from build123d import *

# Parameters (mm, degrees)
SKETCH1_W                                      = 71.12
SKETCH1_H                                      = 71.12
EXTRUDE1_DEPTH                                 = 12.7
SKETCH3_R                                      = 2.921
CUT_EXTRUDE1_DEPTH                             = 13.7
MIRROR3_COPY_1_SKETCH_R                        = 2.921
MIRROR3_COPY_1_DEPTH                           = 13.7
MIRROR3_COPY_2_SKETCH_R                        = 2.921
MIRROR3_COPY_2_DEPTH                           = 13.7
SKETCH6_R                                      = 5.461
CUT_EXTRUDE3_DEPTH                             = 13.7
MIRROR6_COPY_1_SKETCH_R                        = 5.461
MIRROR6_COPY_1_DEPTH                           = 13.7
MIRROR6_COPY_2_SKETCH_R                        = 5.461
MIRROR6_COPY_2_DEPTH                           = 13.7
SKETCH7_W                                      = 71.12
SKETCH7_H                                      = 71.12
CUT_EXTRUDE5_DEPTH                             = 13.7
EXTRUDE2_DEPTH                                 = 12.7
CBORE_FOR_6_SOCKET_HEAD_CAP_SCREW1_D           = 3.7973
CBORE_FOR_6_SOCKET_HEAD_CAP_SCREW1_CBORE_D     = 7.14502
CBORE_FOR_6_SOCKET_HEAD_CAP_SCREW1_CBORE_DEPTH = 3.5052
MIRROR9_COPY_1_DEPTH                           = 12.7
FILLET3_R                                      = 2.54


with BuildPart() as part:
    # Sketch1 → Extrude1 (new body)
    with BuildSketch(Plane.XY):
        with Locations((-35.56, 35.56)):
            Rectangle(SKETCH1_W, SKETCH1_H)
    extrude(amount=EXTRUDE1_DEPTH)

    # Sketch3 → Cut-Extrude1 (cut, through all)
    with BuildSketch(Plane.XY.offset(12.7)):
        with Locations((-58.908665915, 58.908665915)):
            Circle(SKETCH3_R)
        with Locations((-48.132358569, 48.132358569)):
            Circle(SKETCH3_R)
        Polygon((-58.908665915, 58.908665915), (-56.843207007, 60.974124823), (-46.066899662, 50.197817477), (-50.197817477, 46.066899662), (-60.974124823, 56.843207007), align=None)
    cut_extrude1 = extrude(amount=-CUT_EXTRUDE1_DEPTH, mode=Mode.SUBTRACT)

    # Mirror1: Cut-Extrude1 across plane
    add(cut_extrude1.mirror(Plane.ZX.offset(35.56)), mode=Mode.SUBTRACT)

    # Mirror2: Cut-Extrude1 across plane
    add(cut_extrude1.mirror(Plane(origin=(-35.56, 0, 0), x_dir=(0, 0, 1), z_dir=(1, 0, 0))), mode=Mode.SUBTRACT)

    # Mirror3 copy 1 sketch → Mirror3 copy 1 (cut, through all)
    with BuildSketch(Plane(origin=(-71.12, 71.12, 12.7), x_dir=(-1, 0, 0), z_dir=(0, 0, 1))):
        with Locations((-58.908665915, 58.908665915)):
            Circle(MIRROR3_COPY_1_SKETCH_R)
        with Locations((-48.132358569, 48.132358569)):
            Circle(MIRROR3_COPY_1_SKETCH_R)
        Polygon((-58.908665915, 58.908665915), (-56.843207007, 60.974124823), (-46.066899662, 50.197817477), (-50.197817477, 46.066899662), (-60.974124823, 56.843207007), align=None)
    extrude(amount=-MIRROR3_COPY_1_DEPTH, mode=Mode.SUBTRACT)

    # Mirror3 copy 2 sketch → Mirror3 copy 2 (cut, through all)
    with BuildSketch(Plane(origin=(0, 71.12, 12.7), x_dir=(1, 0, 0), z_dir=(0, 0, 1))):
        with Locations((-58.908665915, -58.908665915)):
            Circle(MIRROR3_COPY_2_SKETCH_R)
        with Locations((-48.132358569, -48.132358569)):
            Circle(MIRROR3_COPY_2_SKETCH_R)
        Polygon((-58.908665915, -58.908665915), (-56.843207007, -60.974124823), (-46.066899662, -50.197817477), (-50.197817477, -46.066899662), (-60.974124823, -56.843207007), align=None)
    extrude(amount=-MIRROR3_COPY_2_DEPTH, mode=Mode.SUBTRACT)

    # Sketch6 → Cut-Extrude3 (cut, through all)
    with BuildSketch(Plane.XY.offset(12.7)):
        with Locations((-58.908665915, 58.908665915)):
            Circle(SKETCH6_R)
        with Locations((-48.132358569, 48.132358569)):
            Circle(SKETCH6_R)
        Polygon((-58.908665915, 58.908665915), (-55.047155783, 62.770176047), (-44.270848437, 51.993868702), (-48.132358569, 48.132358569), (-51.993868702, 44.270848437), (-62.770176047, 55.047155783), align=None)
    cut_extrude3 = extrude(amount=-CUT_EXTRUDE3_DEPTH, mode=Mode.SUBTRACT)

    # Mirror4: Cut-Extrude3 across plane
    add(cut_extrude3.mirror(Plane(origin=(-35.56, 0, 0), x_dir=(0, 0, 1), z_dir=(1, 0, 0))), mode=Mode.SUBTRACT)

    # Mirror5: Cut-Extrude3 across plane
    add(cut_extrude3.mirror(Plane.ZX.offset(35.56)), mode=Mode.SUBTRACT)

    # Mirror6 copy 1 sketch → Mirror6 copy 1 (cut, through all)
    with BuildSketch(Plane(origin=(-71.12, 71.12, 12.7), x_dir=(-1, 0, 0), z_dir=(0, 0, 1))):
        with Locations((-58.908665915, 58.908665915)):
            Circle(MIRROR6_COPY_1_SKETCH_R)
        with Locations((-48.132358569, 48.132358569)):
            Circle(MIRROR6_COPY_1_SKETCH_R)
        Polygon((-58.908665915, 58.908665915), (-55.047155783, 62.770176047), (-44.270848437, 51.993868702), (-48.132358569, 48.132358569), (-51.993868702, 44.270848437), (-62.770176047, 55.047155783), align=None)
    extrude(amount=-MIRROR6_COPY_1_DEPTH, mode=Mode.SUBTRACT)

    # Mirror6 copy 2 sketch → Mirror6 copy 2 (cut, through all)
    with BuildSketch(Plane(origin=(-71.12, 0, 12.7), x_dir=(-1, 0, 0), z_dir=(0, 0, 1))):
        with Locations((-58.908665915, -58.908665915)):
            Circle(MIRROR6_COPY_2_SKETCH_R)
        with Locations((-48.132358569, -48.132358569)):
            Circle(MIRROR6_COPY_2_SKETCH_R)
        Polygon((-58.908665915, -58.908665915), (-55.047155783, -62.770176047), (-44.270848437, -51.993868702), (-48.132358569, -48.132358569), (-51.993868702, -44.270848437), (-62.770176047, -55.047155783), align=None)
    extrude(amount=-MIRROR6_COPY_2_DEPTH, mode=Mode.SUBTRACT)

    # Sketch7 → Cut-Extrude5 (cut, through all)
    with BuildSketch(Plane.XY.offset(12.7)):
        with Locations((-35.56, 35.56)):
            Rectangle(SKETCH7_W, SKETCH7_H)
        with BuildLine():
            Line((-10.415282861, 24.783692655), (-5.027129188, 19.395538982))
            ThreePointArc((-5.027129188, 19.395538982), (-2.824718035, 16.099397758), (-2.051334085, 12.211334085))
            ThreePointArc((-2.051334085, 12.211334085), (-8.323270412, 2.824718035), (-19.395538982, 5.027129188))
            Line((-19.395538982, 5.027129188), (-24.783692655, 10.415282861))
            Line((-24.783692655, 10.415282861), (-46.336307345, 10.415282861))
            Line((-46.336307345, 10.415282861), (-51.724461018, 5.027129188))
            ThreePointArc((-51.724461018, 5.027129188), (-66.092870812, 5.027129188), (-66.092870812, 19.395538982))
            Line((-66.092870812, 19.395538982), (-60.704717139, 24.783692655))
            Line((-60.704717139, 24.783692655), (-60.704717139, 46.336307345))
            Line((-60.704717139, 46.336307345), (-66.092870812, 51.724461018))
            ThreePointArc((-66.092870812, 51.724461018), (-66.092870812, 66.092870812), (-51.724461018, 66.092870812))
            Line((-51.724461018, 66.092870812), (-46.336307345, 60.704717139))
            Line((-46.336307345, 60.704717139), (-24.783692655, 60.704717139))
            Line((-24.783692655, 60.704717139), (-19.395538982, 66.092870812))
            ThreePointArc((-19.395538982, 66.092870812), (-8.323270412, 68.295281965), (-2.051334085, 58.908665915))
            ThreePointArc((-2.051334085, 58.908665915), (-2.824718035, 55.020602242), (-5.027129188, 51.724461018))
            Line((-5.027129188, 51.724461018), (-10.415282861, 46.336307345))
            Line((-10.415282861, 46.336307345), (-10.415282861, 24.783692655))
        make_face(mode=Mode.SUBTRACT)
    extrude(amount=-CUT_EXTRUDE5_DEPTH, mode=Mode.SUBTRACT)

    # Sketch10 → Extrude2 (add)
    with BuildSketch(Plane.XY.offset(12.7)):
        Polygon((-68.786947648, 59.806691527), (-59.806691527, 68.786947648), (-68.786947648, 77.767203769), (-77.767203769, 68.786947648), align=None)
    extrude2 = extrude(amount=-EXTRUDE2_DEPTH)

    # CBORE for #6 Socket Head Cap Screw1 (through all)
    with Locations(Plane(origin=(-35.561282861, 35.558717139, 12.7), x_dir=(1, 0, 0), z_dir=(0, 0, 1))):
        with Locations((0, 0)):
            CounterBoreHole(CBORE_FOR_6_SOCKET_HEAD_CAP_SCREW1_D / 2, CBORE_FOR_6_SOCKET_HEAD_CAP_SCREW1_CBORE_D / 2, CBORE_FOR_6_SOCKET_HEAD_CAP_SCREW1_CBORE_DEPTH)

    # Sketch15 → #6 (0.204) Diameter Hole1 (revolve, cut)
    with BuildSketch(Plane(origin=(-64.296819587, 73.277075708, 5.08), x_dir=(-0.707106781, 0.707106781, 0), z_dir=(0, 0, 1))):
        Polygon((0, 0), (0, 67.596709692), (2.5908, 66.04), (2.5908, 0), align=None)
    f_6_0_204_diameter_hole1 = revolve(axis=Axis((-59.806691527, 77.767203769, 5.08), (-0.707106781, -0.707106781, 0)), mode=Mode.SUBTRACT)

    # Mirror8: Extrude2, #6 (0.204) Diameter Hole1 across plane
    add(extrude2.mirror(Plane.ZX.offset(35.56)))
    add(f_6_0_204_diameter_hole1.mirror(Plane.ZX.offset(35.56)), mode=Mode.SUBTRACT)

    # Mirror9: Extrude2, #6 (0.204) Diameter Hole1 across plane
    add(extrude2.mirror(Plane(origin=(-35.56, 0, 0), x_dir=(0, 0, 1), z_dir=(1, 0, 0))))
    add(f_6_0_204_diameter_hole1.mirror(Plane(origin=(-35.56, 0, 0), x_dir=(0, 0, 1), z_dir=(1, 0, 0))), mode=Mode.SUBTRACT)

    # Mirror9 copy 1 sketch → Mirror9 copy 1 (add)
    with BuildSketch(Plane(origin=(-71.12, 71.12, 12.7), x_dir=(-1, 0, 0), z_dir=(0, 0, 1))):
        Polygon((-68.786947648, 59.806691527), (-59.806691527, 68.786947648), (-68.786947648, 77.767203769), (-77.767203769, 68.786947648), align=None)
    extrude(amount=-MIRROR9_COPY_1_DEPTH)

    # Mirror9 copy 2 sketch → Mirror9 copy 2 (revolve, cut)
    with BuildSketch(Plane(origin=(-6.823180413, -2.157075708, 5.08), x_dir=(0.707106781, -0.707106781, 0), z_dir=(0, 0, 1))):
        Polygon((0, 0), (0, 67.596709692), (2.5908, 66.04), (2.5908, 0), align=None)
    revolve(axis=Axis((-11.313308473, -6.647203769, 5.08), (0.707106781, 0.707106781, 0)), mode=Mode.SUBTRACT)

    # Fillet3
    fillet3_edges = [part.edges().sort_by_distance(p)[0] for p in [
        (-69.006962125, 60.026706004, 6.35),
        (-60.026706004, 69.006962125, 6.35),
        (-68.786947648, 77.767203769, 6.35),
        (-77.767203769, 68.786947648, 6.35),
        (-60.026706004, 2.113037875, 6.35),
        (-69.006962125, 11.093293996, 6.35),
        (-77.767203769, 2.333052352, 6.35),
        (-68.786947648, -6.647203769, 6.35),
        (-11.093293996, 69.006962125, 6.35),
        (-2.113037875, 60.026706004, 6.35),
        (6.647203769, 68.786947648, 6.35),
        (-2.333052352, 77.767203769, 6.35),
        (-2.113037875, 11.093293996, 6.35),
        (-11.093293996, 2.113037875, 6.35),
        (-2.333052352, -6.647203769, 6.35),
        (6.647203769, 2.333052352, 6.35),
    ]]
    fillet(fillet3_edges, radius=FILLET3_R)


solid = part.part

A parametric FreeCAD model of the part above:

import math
import FreeCAD as App
import Part
import Sketcher
Q = App.Units.Quantity


def edges_at(feature, points):
    """Names of the edges that pass closest to the given points."""
    edges = feature.Shape.Edges
    near = lambda p: min(range(len(edges)), key=lambda i: edges[i].distToShape(Part.Vertex(*p))[0])
    return sorted({f"Edge{near(p) + 1}" for p in points})


def add_polygon(sketch, points):
    """Adds a closed chain of lines whose ends are joined by coincident constraints."""
    first, n = sketch.GeometryCount, len(points)
    for a, b in zip(points, points[1:] + points[:1]):
        sketch.addGeometry(Part.LineSegment(App.Vector(*a, 0), App.Vector(*b, 0)), False)
    for i in range(n):
        sketch.addConstraint(Sketcher.Constraint("Coincident", first + i, 2, first + (i + 1) % n, 1))

doc = App.newDocument("Part")
body = doc.addObject("PartDesign::Body", "Body")

# Sketch on XY plane
sketch1 = body.newObject("Sketcher::SketchObject", "Sketch")
sketch1.AttachmentSupport = (doc.getObject("XY_Plane"), [""])
sketch1.MapMode = "FlatFace"
add_polygon(sketch1, [(-71.12, 71.12), (-71.12, 0), (0, 0), (0, 71.12)])  # lines 0-3
sketch1.addConstraint(Sketcher.Constraint("Vertical", 0))
sketch1.addConstraint(Sketcher.Constraint("Horizontal", 1))
sketch1.addConstraint(Sketcher.Constraint("Vertical", 2))
sketch1.addConstraint(Sketcher.Constraint("Horizontal", 3))
sketch1.addConstraint(Sketcher.Constraint("Coincident", 1, 2, -1, 1))
sketch1.addConstraint(Sketcher.Constraint("Equal", 3, 0))
sketch1.addConstraint(Sketcher.Constraint("DistanceX", 1, 1, 1, 2, Q("2.8 in")))
pad1 = body.newObject("PartDesign::Pad", "Pad")
pad1.Profile = sketch1
pad1.Length = Q("0.5 in")

# Sketch on XY plane
sketch2 = body.newObject("Sketcher::SketchObject", "Sketch001")
sketch2.AttachmentSupport = (doc.getObject("XY_Plane"), [""])
sketch2.MapMode = "FlatFace"
sketch2.AttachmentOffset = App.Placement(App.Vector(0, 0, 0.5 * 25.4), App.Rotation())
sketch2.addGeometry(Part.LineSegment(App.Vector(-46.0669, 50.197817, 0), App.Vector(-56.843207, 60.974125, 0)), False)
sketch2.addGeometry(Part.ArcOfCircle(Part.Circle(App.Vector(-58.908666, 58.908666, 0), App.Vector(0, 0, 1), 2.921), math.radians(45), math.radians(225)), False)
sketch2.addGeometry(Part.LineSegment(App.Vector(-60.974125, 56.843207, 0), App.Vector(-50.197817, 46.0669, 0)), False)
sketch2.addGeometry(Part.ArcOfCircle(Part.Circle(App.Vector(-48.132359, 48.132359, 0), App.Vector(0, 0, 1), 2.921), math.radians(-135), math.radians(45)), False)
sketch2.addConstraint(Sketcher.Constraint("Tangent", 0, 2, 1, 1))
sketch2.addConstraint(Sketcher.Constraint("Tangent", 1, 2, 2, 1))
sketch2.addConstraint(Sketcher.Constraint("Tangent", 2, 2, 3, 1))
sketch2.addConstraint(Sketcher.Constraint("Tangent", 3, 2, 0, 1))
sketch2.addConstraint(Sketcher.Constraint("Equal", 1, 3))
sketch2.addConstraint(Sketcher.Constraint("Angle", 0, Q("135 deg")))
sketch2.addConstraint(Sketcher.Constraint("Radius", 1, Q("0.115 in")))
sketch2.addConstraint(Sketcher.Constraint("Distance", 0, Q("0.6 in")))
sketch2.addConstraint(Sketcher.Constraint("DistanceY", -1, 1, 2, 2, 46.0669))
sketch2.addConstraint(Sketcher.Constraint("DistanceX", 3, 2, -1, 1, 46.0669))
pocket1 = body.newObject("PartDesign::Pocket", "Pocket")
pocket1.Profile = sketch2
pocket1.Type = "ThroughAll"
doc.recompute()

datumplane = body.newObject("PartDesign::Plane", "DatumPlane")
datumplane.AttachmentSupport = (doc.getObject("XZ_Plane"), [""])
datumplane.MapMode = "FlatFace"
datumplane.AttachmentOffset = App.Placement(App.Vector(0, 0, -1.4 * 25.4), App.Rotation())
mirrored = body.newObject("PartDesign::Mirrored", "Mirrored")
mirrored.Originals = [pocket1]
mirrored.MirrorPlane = (datumplane, [""])
body.Tip = mirrored
doc.recompute()

datumplane2 = body.newObject("PartDesign::Plane", "DatumPlane001")
datumplane2.AttachmentSupport = (doc.getObject("YZ_Plane"), [""])
datumplane2.MapMode = "FlatFace"
datumplane2.AttachmentOffset = App.Placement(App.Vector(0, 0, -1.4 * 25.4), App.Rotation())
mirrored2 = body.newObject("PartDesign::Mirrored", "Mirrored001")
mirrored2.Originals = [pocket1]
mirrored2.MirrorPlane = (datumplane2, [""])
body.Tip = mirrored2

# Sketch on XY plane
sketch3 = body.newObject("Sketcher::SketchObject", "Sketch002")
sketch3.AttachmentSupport = (doc.getObject("XY_Plane"), [""])
sketch3.MapMode = "FlatFace"
sketch3.AttachmentOffset = App.Placement(App.Vector(0, 0, 0.5 * 25.4), App.Rotation())
sketch3.addGeometry(Part.LineSegment(App.Vector(-25.0531, 20.922183, 0), App.Vector(-14.276793, 10.145875, 0)), False)
sketch3.addGeometry(Part.ArcOfCircle(Part.Circle(App.Vector(-12.211334, 12.211334, 0), App.Vector(0, 0, 1), 2.921), math.radians(-135), math.radians(45)), False)
sketch3.addGeometry(Part.LineSegment(App.Vector(-10.145875, 14.276793, 0), App.Vector(-20.922183, 25.0531, 0)), False)
sketch3.addGeometry(Part.ArcOfCircle(Part.Circle(App.Vector(-22.987641, 22.987641, 0), App.Vector(0, 0, 1), 2.921), math.radians(45), math.radians(225)), False)
sketch3.addConstraint(Sketcher.Constraint("Tangent", 0, 2, 1, 1))
sketch3.addConstraint(Sketcher.Constraint("Tangent", 1, 2, 2, 1))
sketch3.addConstraint(Sketcher.Constraint("Tangent", 2, 2, 3, 1))
sketch3.addConstraint(Sketcher.Constraint("Tangent", 3, 2, 0, 1))
sketch3.addConstraint(Sketcher.Constraint("Equal", 1, 3))
sketch3.addConstraint(Sketcher.Constraint("Angle", 0, Q("-45 deg")))
sketch3.addConstraint(Sketcher.Constraint("Radius", 1, Q("0.115 in")))
sketch3.addConstraint(Sketcher.Constraint("Distance", 0, Q("0.6 in")))
sketch3.addConstraint(Sketcher.Constraint("DistanceY", -1, 1, 2, 2, 25.0531))
sketch3.addConstraint(Sketcher.Constraint("DistanceX", 3, 2, -1, 1, 25.0531))
pocket2 = body.newObject("PartDesign::Pocket", "Pocket001")
pocket2.Profile = sketch3
pocket2.Type = "ThroughAll"

# Sketch on XY plane
sketch4 = body.newObject("Sketcher::SketchObject", "Sketch003")
sketch4.AttachmentSupport = (doc.getObject("XY_Plane"), [""])
sketch4.MapMode = "FlatFace"
sketch4.AttachmentOffset = App.Placement(App.Vector(0, 0, 0.5 * 25.4), App.Rotation())
sketch4.addGeometry(Part.LineSegment(App.Vector(-56.843207, 10.145875, 0), App.Vector(-46.0669, 20.922183, 0)), False)
sketch4.addGeometry(Part.ArcOfCircle(Part.Circle(App.Vector(-48.132359, 22.987641, 0), App.Vector(0, 0, 1), 2.921), math.radians(-45), math.radians(135)), False)
sketch4.addGeometry(Part.LineSegment(App.Vector(-50.197817, 25.0531, 0), App.Vector(-60.974125, 14.276793, 0)), False)
sketch4.addGeometry(Part.ArcOfCircle(Part.Circle(App.Vector(-58.908666, 12.211334, 0), App.Vector(0, 0, 1), 2.921), math.radians(135), math.radians(315)), False)
sketch4.addConstraint(Sketcher.Constraint("Tangent", 0, 2, 1, 1))
sketch4.addConstraint(Sketcher.Constraint("Tangent", 1, 2, 2, 1))
sketch4.addConstraint(Sketcher.Constraint("Tangent", 2, 2, 3, 1))
sketch4.addConstraint(Sketcher.Constraint("Tangent", 3, 2, 0, 1))
sketch4.addConstraint(Sketcher.Constraint("Equal", 1, 3))
sketch4.addConstraint(Sketcher.Constraint("Angle", 0, Q("45 deg")))
sketch4.addConstraint(Sketcher.Constraint("Radius", 1, Q("0.115 in")))
sketch4.addConstraint(Sketcher.Constraint("Distance", 0, Q("0.6 in")))
sketch4.addConstraint(Sketcher.Constraint("DistanceX", 0, 2, -1, 1, 46.0669))
sketch4.addConstraint(Sketcher.Constraint("DistanceY", -1, 1, 1, 2, 25.0531))
pocket3 = body.newObject("PartDesign::Pocket", "Pocket002")
pocket3.Profile = sketch4
pocket3.Type = "ThroughAll"

# Sketch on XY plane
sketch5 = body.newObject("Sketcher::SketchObject", "Sketch004")
sketch5.AttachmentSupport = (doc.getObject("XY_Plane"), [""])
sketch5.MapMode = "FlatFace"
sketch5.AttachmentOffset = App.Placement(App.Vector(0, 0, 0.5 * 25.4), App.Rotation())
sketch5.addGeometry(Part.LineSegment(App.Vector(-44.270848, 51.993869, 0), App.Vector(-55.047156, 62.770176, 0)), False)
sketch5.addGeometry(Part.ArcOfCircle(Part.Circle(App.Vector(-58.908666, 58.908666, 0), App.Vector(0, 0, 1), 5.461), math.radians(45), math.radians(225)), False)
sketch5.addGeometry(Part.LineSegment(App.Vector(-62.770176, 55.047156, 0), App.Vector(-51.993869, 44.270848, 0)), False)
sketch5.addGeometry(Part.ArcOfCircle(Part.Circle(App.Vector(-48.132359, 48.132359, 0), App.Vector(0, 0, 1), 5.461), math.radians(-135), math.radians(45)), False)
sketch5.addConstraint(Sketcher.Constraint("Tangent", 0, 2, 1, 1))
sketch5.addConstraint(Sketcher.Constraint("Tangent", 1, 2, 2, 1))
sketch5.addConstraint(Sketcher.Constraint("Tangent", 2, 2, 3, 1))
sketch5.addConstraint(Sketcher.Constraint("Tangent", 3, 2, 0, 1))
sketch5.addConstraint(Sketcher.Constraint("Equal", 1, 3))
sketch5.addConstraint(Sketcher.Constraint("Angle", 0, Q("135 deg")))
sketch5.addConstraint(Sketcher.Constraint("Radius", 1, Q("0.215 in")))
sketch5.addConstraint(Sketcher.Constraint("Distance", 0, Q("0.6 in")))
sketch5.addConstraint(Sketcher.Constraint("DistanceX", 3, 3, -1, 1, 48.132359))
sketch5.addConstraint(Sketcher.Constraint("DistanceY", -1, 1, 3, 3, 48.132359))
pocket4 = body.newObject("PartDesign::Pocket", "Pocket003")
pocket4.Profile = sketch5
pocket4.Type = "ThroughAll"
doc.recompute()

datumplane3 = body.newObject("PartDesign::Plane", "DatumPlane002")
datumplane3.AttachmentSupport = (doc.getObject("YZ_Plane"), [""])
datumplane3.MapMode = "FlatFace"
datumplane3.AttachmentOffset = App.Placement(App.Vector(0, 0, -1.4 * 25.4), App.Rotation())
mirrored3 = body.newObject("PartDesign::Mirrored", "Mirrored002")
mirrored3.Originals = [pocket4]
mirrored3.MirrorPlane = (datumplane3, [""])
body.Tip = mirrored3
doc.recompute()

datumplane4 = body.newObject("PartDesign::Plane", "DatumPlane003")
datumplane4.AttachmentSupport = (doc.getObject("XZ_Plane"), [""])
datumplane4.MapMode = "FlatFace"
datumplane4.AttachmentOffset = App.Placement(App.Vector(0, 0, -1.4 * 25.4), App.Rotation())
mirrored4 = body.newObject("PartDesign::Mirrored", "Mirrored003")
mirrored4.Originals = [pocket4]
mirrored4.MirrorPlane = (datumplane4, [""])
body.Tip = mirrored4

# Sketch on XY plane
sketch6 = body.newObject("Sketcher::SketchObject", "Sketch005")
sketch6.AttachmentSupport = (doc.getObject("XY_Plane"), [""])
sketch6.MapMode = "FlatFace"
sketch6.AttachmentOffset = App.Placement(App.Vector(0, 0, 0.5 * 25.4), App.Rotation())
sketch6.addGeometry(Part.LineSegment(App.Vector(-26.849152, 19.126131, 0), App.Vector(-16.072844, 8.349824, 0)), False)
sketch6.addGeometry(Part.ArcOfCircle(Part.Circle(App.Vector(-12.211334, 12.211334, 0), App.Vector(0, 0, 1), 5.461), math.radians(-135), math.radians(45)), False)
sketch6.addGeometry(Part.LineSegment(App.Vector(-8.349824, 16.072844, 0), App.Vector(-19.126131, 26.849152, 0)), False)
sketch6.addGeometry(Part.ArcOfCircle(Part.Circle(App.Vector(-22.987641, 22.987641, 0), App.Vector(0, 0, 1), 5.461), math.radians(45), math.radians(225)), False)
sketch6.addConstraint(Sketcher.Constraint("Tangent", 0, 2, 1, 1))
sketch6.addConstraint(Sketcher.Constraint("Tangent", 1, 2, 2, 1))
sketch6.addConstraint(Sketcher.Constraint("Tangent", 2, 2, 3, 1))
sketch6.addConstraint(Sketcher.Constraint("Tangent", 3, 2, 0, 1))
sketch6.addConstraint(Sketcher.Constraint("Equal", 1, 3))
sketch6.addConstraint(Sketcher.Constraint("Angle", 0, Q("-45 deg")))
sketch6.addConstraint(Sketcher.Constraint("Radius", 1, Q("0.215 in")))
sketch6.addConstraint(Sketcher.Constraint("Distance", 0, Q("0.6 in")))
sketch6.addConstraint(Sketcher.Constraint("DistanceX", 3, 3, -1, 1, 22.987641))
sketch6.addConstraint(Sketcher.Constraint("DistanceY", -1, 1, 3, 3, 22.987641))
pocket5 = body.newObject("PartDesign::Pocket", "Pocket004")
pocket5.Profile = sketch6
pocket5.Type = "ThroughAll"

# Sketch on XY plane
sketch7 = body.newObject("Sketcher::SketchObject", "Sketch006")
sketch7.AttachmentSupport = (doc.getObject("XY_Plane"), [""])
sketch7.MapMode = "FlatFace"
sketch7.AttachmentOffset = App.Placement(App.Vector(0, 0, 0.5 * 25.4), App.Rotation())
sketch7.addGeometry(Part.LineSegment(App.Vector(-16.072844, 62.770176, 0), App.Vector(-26.849152, 51.993869, 0)), False)
sketch7.addGeometry(Part.ArcOfCircle(Part.Circle(App.Vector(-22.987641, 48.132359, 0), App.Vector(0, 0, 1), 5.461), math.radians(135), math.radians(315)), False)
sketch7.addGeometry(Part.LineSegment(App.Vector(-19.126131, 44.270848, 0), App.Vector(-8.349824, 55.047156, 0)), False)
sketch7.addGeometry(Part.ArcOfCircle(Part.Circle(App.Vector(-12.211334, 58.908666, 0), App.Vector(0, 0, 1), 5.461), math.radians(-45), math.radians(135)), False)
sketch7.addConstraint(Sketcher.Constraint("Tangent", 0, 2, 1, 1))
sketch7.addConstraint(Sketcher.Constraint("Tangent", 1, 2, 2, 1))
sketch7.addConstraint(Sketcher.Constraint("Tangent", 2, 2, 3, 1))
sketch7.addConstraint(Sketcher.Constraint("Tangent", 3, 2, 0, 1))
sketch7.addConstraint(Sketcher.Constraint("Equal", 1, 3))
sketch7.addConstraint(Sketcher.Constraint("Angle", 0, Q("-135 deg")))
sketch7.addConstraint(Sketcher.Constraint("Radius", 1, Q("0.215 in")))
sketch7.addConstraint(Sketcher.Constraint("Distance", 0, Q("0.6 in")))
sketch7.addConstraint(Sketcher.Constraint("DistanceX", 1, 3, -1, 1, 22.987641))
sketch7.addConstraint(Sketcher.Constraint("DistanceY", -1, 1, 1, 3, 48.132359))
pocket6 = body.newObject("PartDesign::Pocket", "Pocket005")
pocket6.Profile = sketch7
pocket6.Type = "ThroughAll"

# Sketch on XY plane
sketch8 = body.newObject("Sketcher::SketchObject", "Sketch007")
sketch8.AttachmentSupport = (doc.getObject("XY_Plane"), [""])
sketch8.MapMode = "FlatFace"
sketch8.AttachmentOffset = App.Placement(App.Vector(0, 0, 0.5 * 25.4), App.Rotation())
add_polygon(sketch8, [(-71.12, 71.12), (-71.12, 0), (0, 0), (0, 71.12)])  # lines 0-3
sketch8.addGeometry(Part.LineSegment(App.Vector(-10.415283, 46.336307, 0), App.Vector(-10.415283, 24.783693, 0)), False)  # 4
sketch8.addGeometry(Part.LineSegment(App.Vector(-10.415283, 24.783693, 0), App.Vector(-5.027129, 19.395539, 0)), False)  # 5
sketch8.addGeometry(Part.ArcOfCircle(Part.Circle(App.Vector(-12.211334, 12.211334, 0), App.Vector(0, 0, 1), 10.16), math.radians(0), math.radians(45)), False)  # 6
sketch8.addGeometry(Part.ArcOfCircle(Part.Circle(App.Vector(-12.211334, 12.211334, 0), App.Vector(0, 0, 1), 10.16), math.radians(-135), math.radians(0)), False)  # 7
sketch8.addGeometry(Part.LineSegment(App.Vector(-19.395539, 5.027129, 0), App.Vector(-24.783693, 10.415283, 0)), False)  # 8
sketch8.addGeometry(Part.LineSegment(App.Vector(-24.783693, 10.415283, 0), App.Vector(-46.336307, 10.415283, 0)), False)  # 9
sketch8.addGeometry(Part.LineSegment(App.Vector(-46.336307, 10.415283, 0), App.Vector(-51.724461, 5.027129, 0)), False)  # 10
sketch8.addGeometry(Part.ArcOfCircle(Part.Circle(App.Vector(-58.908666, 12.211334, 0), App.Vector(0, 0, 1), 10.16), math.radians(135), math.radians(315)), False)  # 11
sketch8.addGeometry(Part.LineSegment(App.Vector(-66.092871, 19.395539, 0), App.Vector(-60.704717, 24.783693, 0)), False)  # 12
sketch8.addGeometry(Part.LineSegment(App.Vector(-60.704717, 24.783693, 0), App.Vector(-60.704717, 46.336307, 0)), False)  # 13
sketch8.addGeometry(Part.LineSegment(App.Vector(-60.704717, 46.336307, 0), App.Vector(-66.092871, 51.724461, 0)), False)  # 14
sketch8.addGeometry(Part.ArcOfCircle(Part.Circle(App.Vector(-58.908666, 58.908666, 0), App.Vector(0, 0, 1), 10.16), math.radians(45), math.radians(225)), False)  # 15
sketch8.addGeometry(Part.LineSegment(App.Vector(-51.724461, 66.092871, 0), App.Vector(-46.336307, 60.704717, 0)), False)  # 16
sketch8.addGeometry(Part.LineSegment(App.Vector(-46.336307, 60.704717, 0), App.Vector(-24.783693, 60.704717, 0)), False)  # 17
sketch8.addGeometry(Part.LineSegment(App.Vector(-24.783693, 60.704717, 0), App.Vector(-19.395539, 66.092871, 0)), False)  # 18
sketch8.addGeometry(Part.ArcOfCircle(Part.Circle(App.Vector(-12.211334, 58.908666, 0), App.Vector(0, 0, 1), 10.16), math.radians(0), math.radians(135)), False)  # 19
sketch8.addGeometry(Part.ArcOfCircle(Part.Circle(App.Vector(-12.211334, 58.908666, 0), App.Vector(0, 0, 1), 10.16), math.radians(-45), math.radians(0)), False)  # 20
sketch8.addGeometry(Part.LineSegment(App.Vector(-5.027129, 51.724461, 0), App.Vector(-10.415283, 46.336307, 0)), False)  # 21
sketch8.addConstraint(Sketcher.Constraint("Coincident", 4, 2, 5, 1))
sketch8.addConstraint(Sketcher.Constraint("Tangent", 5, 2, 6, 2))
sketch8.addConstraint(Sketcher.Constraint("Tangent", 6, 1, 7, 2))
sketch8.addConstraint(Sketcher.Constraint("Tangent", 7, 1, 8, 1))
sketch8.addConstraint(Sketcher.Constraint("Coincident", 8, 2, 9, 1))
sketch8.addConstraint(Sketcher.Constraint("Coincident", 9, 2, 10, 1))
sketch8.addConstraint(Sketcher.Constraint("Tangent", 10, 2, 11, 2))
sketch8.addConstraint(Sketcher.Constraint("Tangent", 11, 1, 12, 1))
sketch8.addConstraint(Sketcher.Constraint("Coincident", 12, 2, 13, 1))
sketch8.addConstraint(Sketcher.Constraint("Coincident", 13, 2, 14, 1))
sketch8.addConstraint(Sketcher.Constraint("Tangent", 14, 2, 15, 2))
sketch8.addConstraint(Sketcher.Constraint("Tangent", 15, 1, 16, 1))
sketch8.addConstraint(Sketcher.Constraint("Coincident", 16, 2, 17, 1))
sketch8.addConstraint(Sketcher.Constraint("Coincident", 17, 2, 18, 1))
sketch8.addConstraint(Sketcher.Constraint("Tangent", 18, 2, 19, 2))
sketch8.addConstraint(Sketcher.Constraint("Tangent", 19, 1, 20, 2))
sketch8.addConstraint(Sketcher.Constraint("Tangent", 20, 1, 21, 1))
sketch8.addConstraint(Sketcher.Constraint("Coincident", 21, 2, 4, 1))
sketch8.addConstraint(Sketcher.Constraint("Vertical", 0))
sketch8.addConstraint(Sketcher.Constraint("Horizontal", 1))
sketch8.addConstraint(Sketcher.Constraint("Vertical", 2))
sketch8.addConstraint(Sketcher.Constraint("Horizontal", 3))
sketch8.addConstraint(Sketcher.Constraint("Vertical", 4))
sketch8.addConstraint(Sketcher.Constraint("Horizontal", 9))
sketch8.addConstraint(Sketcher.Constraint("Vertical", 13))
sketch8.addConstraint(Sketcher.Constraint("Horizontal", 17))
sketch8.addConstraint(Sketcher.Constraint("Coincident", 1, 2, -1, 1))
sketch8.addConstraint(Sketcher.Constraint("Equal", 6, 7))
sketch8.addConstraint(Sketcher.Constraint("Equal", 7, 11))
sketch8.addConstraint(Sketcher.Constraint("Equal", 11, 15))
sketch8.addConstraint(Sketcher.Constraint("Equal", 15, 19))
sketch8.addConstraint(Sketcher.Constraint("Equal", 19, 20))
sketch8.addConstraint(Sketcher.Constraint("Parallel", 5, 8))
sketch8.addConstraint(Sketcher.Constraint("Perpendicular", 8, 10))
sketch8.addConstraint(Sketcher.Constraint("Parallel", 10, 12))
sketch8.addConstraint(Sketcher.Constraint("Perpendicular", 12, 14))
sketch8.addConstraint(Sketcher.Constraint("Parallel", 14, 16))
sketch8.addConstraint(Sketcher.Constraint("Perpendicular", 16, 18))
sketch8.addConstraint(Sketcher.Constraint("Parallel", 18, 21))
sketch8.addConstraint(Sketcher.Constraint("Horizontal", 7, 3, 11, 3))
sketch8.addConstraint(Sketcher.Constraint("Horizontal", 15, 3, 19, 3))
sketch8.addConstraint(Sketcher.Constraint("Horizontal", 11, 3, 6, 1))
sketch8.addConstraint(Sketcher.Constraint("Horizontal", 7, 1, 10, 2))
sketch8.addConstraint(Sketcher.Constraint("Horizontal", 4, 2, 12, 2))
sketch8.addConstraint(Sketcher.Constraint("Horizontal", 20, 3, 19, 1))
sketch8.addConstraint(Sketcher.Constraint("Horizontal", 13, 2, 21, 2))
sketch8.addConstraint(Sketcher.Constraint("Vertical", 11, 3, 15, 3))
sketch8.addConstraint(Sketcher.Constraint("Vertical", 9, 2, 16, 2))
sketch8.addConstraint(Sketcher.Constraint("Equal", 3, 0))
sketch8.addConstraint(Sketcher.Constraint("Equal", 17, 4))
sketch8.addConstraint(Sketcher.Constraint("Equal", 5, 8))
sketch8.addConstraint(Sketcher.Constraint("Radius", 6, Q("0.4 in")))
sketch8.addConstraint(Sketcher.Constraint("DistanceX", 1, 1, 1, 2, Q("2.8 in")))
sketch8.addConstraint(Sketcher.Constraint("Distance", 5, Q("0.3 in")))
sketch8.addConstraint(Sketcher.Constraint("DistanceX", 9, 2, 9, 1, 21.552615))
sketch8.addConstraint(Sketcher.Constraint("DistanceX", 5, 2, -1, 1, 5.027129))
sketch8.addConstraint(Sketcher.Constraint("DistanceY", -1, 1, 5, 2, 19.395539))
pocket7 = body.newObject("PartDesign::Pocket", "Pocket006")
pocket7.Profile = sketch8
pocket7.Type = "ThroughAll"

# Sketch on XY plane
sketch9 = body.newObject("Sketcher::SketchObject", "Sketch008")
sketch9.AttachmentSupport = (doc.getObject("XY_Plane"), [""])
sketch9.MapMode = "FlatFace"
sketch9.AttachmentOffset = App.Placement(App.Vector(0, 0, 0.5 * 25.4), App.Rotation())
add_polygon(sketch9, [(-68.786948, 59.806692), (-59.806692, 68.786948), (-68.786948, 77.767204), (-77.767204, 68.786948)])  # lines 0-3
sketch9.addConstraint(Sketcher.Constraint("Perpendicular", 0, 1))
sketch9.addConstraint(Sketcher.Constraint("Perpendicular", 1, 2))
sketch9.addConstraint(Sketcher.Constraint("Perpendicular", 2, 3))
sketch9.addConstraint(Sketcher.Constraint("Horizontal", 0, 2, 2, 2))
sketch9.addConstraint(Sketcher.Constraint("Vertical", 1, 2, 3, 2))
sketch9.addConstraint(Sketcher.Constraint("Distance", 0, Q("0.5 in")))
sketch9.addConstraint(Sketcher.Constraint("DistanceX", 0, 2, -1, 1, 59.806692))
sketch9.addConstraint(Sketcher.Constraint("DistanceY", -1, 1, 3, 2, 59.806692))
pad2 = body.newObject("PartDesign::Pad", "Pad001")
pad2.Profile = sketch9
pad2.Length = Q("0.5 in")
pad2.Reversed = True

# Sketch on XY plane
sketch10 = body.newObject("Sketcher::SketchObject", "Sketch009")
sketch10.AttachmentSupport = (doc.getObject("XY_Plane"), [""])
sketch10.MapMode = "FlatFace"
sketch10.AttachmentOffset = App.Placement(App.Vector(0, 0, 0.5 * 25.4), App.Rotation())
sketch10.addGeometry(Part.Circle(App.Vector(-35.561283, 35.558717, 0), App.Vector(0, 0, 1), 1.89865), False)
sketch10.addConstraint(Sketcher.Constraint("Diameter", 0, Q("0.1495 in")))
sketch10.addConstraint(Sketcher.Constraint("DistanceX", 0, 3, -1, 1, 35.561283))
sketch10.addConstraint(Sketcher.Constraint("DistanceY", -1, 1, 0, 3, 35.558717))
doc.recompute()
hole = body.newObject("PartDesign::Hole", "Hole")
hole.Profile = sketch10
hole.ThreadType = "None"
hole.Diameter = Q("0.1495 in")
hole.DepthType = "ThroughAll"
hole.HoleCutType = "Counterbore"
hole.HoleCutDiameter = Q("0.2813 in")
hole.HoleCutDepth = Q("0.138 in")

# Sketch on XY plane
sketch11 = body.newObject("Sketcher::SketchObject", "Sketch010")
sketch11.AttachmentSupport = (doc.getObject("XY_Plane"), [""])
sketch11.MapMode = "FlatFace"
sketch11.AttachmentOffset = App.Placement(App.Vector(0, 0, 0.2 * 25.4), App.Rotation())
add_polygon(sketch11, [(-112.094911, 25.478984), (-64.29682, 73.277076), (-66.128792, 75.109048), (-112.826124, 28.411716)])  # lines 0-3
sketch11.addGeometry(Part.LineSegment(App.Vector(-64.29682, 73.277076, 0), App.Vector(-112.094911, 25.478984, 0)), True)  # axis
sketch11.addConstraint(Sketcher.Constraint("Coincident", 4, 1, 0, 2))
sketch11.addConstraint(Sketcher.Constraint("Coincident", 4, 2, 3, 2))
sketch11.addConstraint(Sketcher.Constraint("Perpendicular", 0, 1))
sketch11.addConstraint(Sketcher.Constraint("Perpendicular", 1, 2))
sketch11.addConstraint(Sketcher.Constraint("Angle", 0, Q("45 deg")))
sketch11.addConstraint(Sketcher.Constraint("Angle", 3, Q("-76 deg")))
sketch11.addConstraint(Sketcher.Constraint("Distance", 2, Q("2.6 in")))
sketch11.addConstraint(Sketcher.Constraint("Distance", 1, Q("0.102 in")))
sketch11.addConstraint(Sketcher.Constraint("DistanceX", 0, 2, -1, 1, 64.29682))
sketch11.addConstraint(Sketcher.Constraint("DistanceY", -1, 1, 0, 2, 73.277076))
groove = body.newObject("PartDesign::Groove", "Groove")
groove.Profile = sketch11
groove.ReferenceAxis = (sketch11, ["Axis0"])
groove.Angle = 360
doc.recompute()

datumplane5 = body.newObject("PartDesign::Plane", "DatumPlane004")
datumplane5.AttachmentSupport = (doc.getObject("XZ_Plane"), [""])
datumplane5.MapMode = "FlatFace"
datumplane5.AttachmentOffset = App.Placement(App.Vector(0, 0, -1.4 * 25.4), App.Rotation())
mirrored5 = body.newObject("PartDesign::Mirrored", "Mirrored004")
mirrored5.Originals = [pad2, groove]
mirrored5.MirrorPlane = (datumplane5, [""])
body.Tip = mirrored5
doc.recompute()

datumplane6 = body.newObject("PartDesign::Plane", "DatumPlane005")
datumplane6.AttachmentSupport = (doc.getObject("YZ_Plane"), [""])
datumplane6.MapMode = "FlatFace"
datumplane6.AttachmentOffset = App.Placement(App.Vector(0, 0, -1.4 * 25.4), App.Rotation())
mirrored6 = body.newObject("PartDesign::Mirrored", "Mirrored005")
mirrored6.Originals = [pad2, groove]
mirrored6.MirrorPlane = (datumplane6, [""])
body.Tip = mirrored6

# Sketch on XY plane
sketch12 = body.newObject("Sketcher::SketchObject", "Sketch011")
sketch12.AttachmentSupport = (doc.getObject("XY_Plane"), [""])
sketch12.MapMode = "FlatFace"
sketch12.AttachmentOffset = App.Placement(App.Vector(0, 0, 0.5 * 25.4), App.Rotation())
add_polygon(sketch12, [(-2.333052, 11.313308), (-11.313308, 2.333052), (-2.333052, -6.647204), (6.647204, 2.333052)])  # lines 0-3
sketch12.addConstraint(Sketcher.Constraint("Perpendicular", 0, 1))
sketch12.addConstraint(Sketcher.Constraint("Perpendicular", 1, 2))
sketch12.addConstraint(Sketcher.Constraint("Perpendicular", 2, 3))
sketch12.addConstraint(Sketcher.Constraint("Horizontal", 0, 2, 2, 2))
sketch12.addConstraint(Sketcher.Constraint("Vertical", 1, 2, 3, 2))
sketch12.addConstraint(Sketcher.Constraint("Distance", 0, Q("0.5 in")))
sketch12.addConstraint(Sketcher.Constraint("DistanceX", 0, 2, -1, 1, 11.313308))
sketch12.addConstraint(Sketcher.Constraint("DistanceY", -1, 1, 3, 2, 11.313308))
pad3 = body.newObject("PartDesign::Pad", "Pad002")
pad3.Profile = sketch12
pad3.Length = Q("0.5 in")
pad3.Reversed = True

# Sketch on XY plane
sketch13 = body.newObject("Sketcher::SketchObject", "Sketch012")
sketch13.AttachmentSupport = (doc.getObject("XY_Plane"), [""])
sketch13.MapMode = "FlatFace"
sketch13.AttachmentOffset = App.Placement(App.Vector(0, 0, 0.2 * 25.4), App.Rotation())
add_polygon(sketch13, [(40.974911, 45.641016), (-6.82318, -2.157076), (-4.991208, -3.989048), (41.706124, 42.708284)])  # lines 0-3
sketch13.addGeometry(Part.LineSegment(App.Vector(-6.82318, -2.157076, 0), App.Vector(40.974911, 45.641016, 0)), True)  # axis
sketch13.addConstraint(Sketcher.Constraint("Coincident", 4, 1, 0, 2))
sketch13.addConstraint(Sketcher.Constraint("Coincident", 4, 2, 3, 2))
sketch13.addConstraint(Sketcher.Constraint("Perpendicular", 0, 1))
sketch13.addConstraint(Sketcher.Constraint("Perpendicular", 1, 2))
sketch13.addConstraint(Sketcher.Constraint("Angle", 0, Q("-135 deg")))
sketch13.addConstraint(Sketcher.Constraint("Angle", 3, Q("104 deg")))
sketch13.addConstraint(Sketcher.Constraint("Distance", 2, Q("2.6 in")))
sketch13.addConstraint(Sketcher.Constraint("Distance", 1, Q("0.102 in")))
sketch13.addConstraint(Sketcher.Constraint("DistanceX", 0, 2, -1, 1, 6.82318))
sketch13.addConstraint(Sketcher.Constraint("DistanceY", 0, 2, -1, 1, 2.157076))
groove2 = body.newObject("PartDesign::Groove", "Groove001")
groove2.Profile = sketch13
groove2.ReferenceAxis = (sketch13, ["Axis0"])
groove2.Angle = 360
doc.recompute()

fillet = body.newObject("PartDesign::Fillet", "Fillet")
fillet.Base = (groove2, edges_at(groove2, [
    (-69.007, 60.027, 6.35),
    (-60.027, 69.007, 6.35),
    (-68.787, 77.767, 6.35),
    (-77.767, 68.787, 6.35),
    (-60.027, 2.113, 6.35),
    (-69.007, 11.093, 6.35),
    (-77.767, 2.333, 6.35),
    (-68.787, -6.647, 6.35),
    (-11.093, 69.007, 6.35),
    (-2.113, 60.027, 6.35),
    (6.647, 68.787, 6.35),
    (-2.333, 77.767, 6.35),
    (-2.113, 11.093, 6.35),
    (-11.093, 2.113, 6.35),
    (-2.333, -6.647, 6.35),
    (6.647, 2.333, 6.35),
]))
fillet.Radius = Q("0.1 in")

doc.recompute()
